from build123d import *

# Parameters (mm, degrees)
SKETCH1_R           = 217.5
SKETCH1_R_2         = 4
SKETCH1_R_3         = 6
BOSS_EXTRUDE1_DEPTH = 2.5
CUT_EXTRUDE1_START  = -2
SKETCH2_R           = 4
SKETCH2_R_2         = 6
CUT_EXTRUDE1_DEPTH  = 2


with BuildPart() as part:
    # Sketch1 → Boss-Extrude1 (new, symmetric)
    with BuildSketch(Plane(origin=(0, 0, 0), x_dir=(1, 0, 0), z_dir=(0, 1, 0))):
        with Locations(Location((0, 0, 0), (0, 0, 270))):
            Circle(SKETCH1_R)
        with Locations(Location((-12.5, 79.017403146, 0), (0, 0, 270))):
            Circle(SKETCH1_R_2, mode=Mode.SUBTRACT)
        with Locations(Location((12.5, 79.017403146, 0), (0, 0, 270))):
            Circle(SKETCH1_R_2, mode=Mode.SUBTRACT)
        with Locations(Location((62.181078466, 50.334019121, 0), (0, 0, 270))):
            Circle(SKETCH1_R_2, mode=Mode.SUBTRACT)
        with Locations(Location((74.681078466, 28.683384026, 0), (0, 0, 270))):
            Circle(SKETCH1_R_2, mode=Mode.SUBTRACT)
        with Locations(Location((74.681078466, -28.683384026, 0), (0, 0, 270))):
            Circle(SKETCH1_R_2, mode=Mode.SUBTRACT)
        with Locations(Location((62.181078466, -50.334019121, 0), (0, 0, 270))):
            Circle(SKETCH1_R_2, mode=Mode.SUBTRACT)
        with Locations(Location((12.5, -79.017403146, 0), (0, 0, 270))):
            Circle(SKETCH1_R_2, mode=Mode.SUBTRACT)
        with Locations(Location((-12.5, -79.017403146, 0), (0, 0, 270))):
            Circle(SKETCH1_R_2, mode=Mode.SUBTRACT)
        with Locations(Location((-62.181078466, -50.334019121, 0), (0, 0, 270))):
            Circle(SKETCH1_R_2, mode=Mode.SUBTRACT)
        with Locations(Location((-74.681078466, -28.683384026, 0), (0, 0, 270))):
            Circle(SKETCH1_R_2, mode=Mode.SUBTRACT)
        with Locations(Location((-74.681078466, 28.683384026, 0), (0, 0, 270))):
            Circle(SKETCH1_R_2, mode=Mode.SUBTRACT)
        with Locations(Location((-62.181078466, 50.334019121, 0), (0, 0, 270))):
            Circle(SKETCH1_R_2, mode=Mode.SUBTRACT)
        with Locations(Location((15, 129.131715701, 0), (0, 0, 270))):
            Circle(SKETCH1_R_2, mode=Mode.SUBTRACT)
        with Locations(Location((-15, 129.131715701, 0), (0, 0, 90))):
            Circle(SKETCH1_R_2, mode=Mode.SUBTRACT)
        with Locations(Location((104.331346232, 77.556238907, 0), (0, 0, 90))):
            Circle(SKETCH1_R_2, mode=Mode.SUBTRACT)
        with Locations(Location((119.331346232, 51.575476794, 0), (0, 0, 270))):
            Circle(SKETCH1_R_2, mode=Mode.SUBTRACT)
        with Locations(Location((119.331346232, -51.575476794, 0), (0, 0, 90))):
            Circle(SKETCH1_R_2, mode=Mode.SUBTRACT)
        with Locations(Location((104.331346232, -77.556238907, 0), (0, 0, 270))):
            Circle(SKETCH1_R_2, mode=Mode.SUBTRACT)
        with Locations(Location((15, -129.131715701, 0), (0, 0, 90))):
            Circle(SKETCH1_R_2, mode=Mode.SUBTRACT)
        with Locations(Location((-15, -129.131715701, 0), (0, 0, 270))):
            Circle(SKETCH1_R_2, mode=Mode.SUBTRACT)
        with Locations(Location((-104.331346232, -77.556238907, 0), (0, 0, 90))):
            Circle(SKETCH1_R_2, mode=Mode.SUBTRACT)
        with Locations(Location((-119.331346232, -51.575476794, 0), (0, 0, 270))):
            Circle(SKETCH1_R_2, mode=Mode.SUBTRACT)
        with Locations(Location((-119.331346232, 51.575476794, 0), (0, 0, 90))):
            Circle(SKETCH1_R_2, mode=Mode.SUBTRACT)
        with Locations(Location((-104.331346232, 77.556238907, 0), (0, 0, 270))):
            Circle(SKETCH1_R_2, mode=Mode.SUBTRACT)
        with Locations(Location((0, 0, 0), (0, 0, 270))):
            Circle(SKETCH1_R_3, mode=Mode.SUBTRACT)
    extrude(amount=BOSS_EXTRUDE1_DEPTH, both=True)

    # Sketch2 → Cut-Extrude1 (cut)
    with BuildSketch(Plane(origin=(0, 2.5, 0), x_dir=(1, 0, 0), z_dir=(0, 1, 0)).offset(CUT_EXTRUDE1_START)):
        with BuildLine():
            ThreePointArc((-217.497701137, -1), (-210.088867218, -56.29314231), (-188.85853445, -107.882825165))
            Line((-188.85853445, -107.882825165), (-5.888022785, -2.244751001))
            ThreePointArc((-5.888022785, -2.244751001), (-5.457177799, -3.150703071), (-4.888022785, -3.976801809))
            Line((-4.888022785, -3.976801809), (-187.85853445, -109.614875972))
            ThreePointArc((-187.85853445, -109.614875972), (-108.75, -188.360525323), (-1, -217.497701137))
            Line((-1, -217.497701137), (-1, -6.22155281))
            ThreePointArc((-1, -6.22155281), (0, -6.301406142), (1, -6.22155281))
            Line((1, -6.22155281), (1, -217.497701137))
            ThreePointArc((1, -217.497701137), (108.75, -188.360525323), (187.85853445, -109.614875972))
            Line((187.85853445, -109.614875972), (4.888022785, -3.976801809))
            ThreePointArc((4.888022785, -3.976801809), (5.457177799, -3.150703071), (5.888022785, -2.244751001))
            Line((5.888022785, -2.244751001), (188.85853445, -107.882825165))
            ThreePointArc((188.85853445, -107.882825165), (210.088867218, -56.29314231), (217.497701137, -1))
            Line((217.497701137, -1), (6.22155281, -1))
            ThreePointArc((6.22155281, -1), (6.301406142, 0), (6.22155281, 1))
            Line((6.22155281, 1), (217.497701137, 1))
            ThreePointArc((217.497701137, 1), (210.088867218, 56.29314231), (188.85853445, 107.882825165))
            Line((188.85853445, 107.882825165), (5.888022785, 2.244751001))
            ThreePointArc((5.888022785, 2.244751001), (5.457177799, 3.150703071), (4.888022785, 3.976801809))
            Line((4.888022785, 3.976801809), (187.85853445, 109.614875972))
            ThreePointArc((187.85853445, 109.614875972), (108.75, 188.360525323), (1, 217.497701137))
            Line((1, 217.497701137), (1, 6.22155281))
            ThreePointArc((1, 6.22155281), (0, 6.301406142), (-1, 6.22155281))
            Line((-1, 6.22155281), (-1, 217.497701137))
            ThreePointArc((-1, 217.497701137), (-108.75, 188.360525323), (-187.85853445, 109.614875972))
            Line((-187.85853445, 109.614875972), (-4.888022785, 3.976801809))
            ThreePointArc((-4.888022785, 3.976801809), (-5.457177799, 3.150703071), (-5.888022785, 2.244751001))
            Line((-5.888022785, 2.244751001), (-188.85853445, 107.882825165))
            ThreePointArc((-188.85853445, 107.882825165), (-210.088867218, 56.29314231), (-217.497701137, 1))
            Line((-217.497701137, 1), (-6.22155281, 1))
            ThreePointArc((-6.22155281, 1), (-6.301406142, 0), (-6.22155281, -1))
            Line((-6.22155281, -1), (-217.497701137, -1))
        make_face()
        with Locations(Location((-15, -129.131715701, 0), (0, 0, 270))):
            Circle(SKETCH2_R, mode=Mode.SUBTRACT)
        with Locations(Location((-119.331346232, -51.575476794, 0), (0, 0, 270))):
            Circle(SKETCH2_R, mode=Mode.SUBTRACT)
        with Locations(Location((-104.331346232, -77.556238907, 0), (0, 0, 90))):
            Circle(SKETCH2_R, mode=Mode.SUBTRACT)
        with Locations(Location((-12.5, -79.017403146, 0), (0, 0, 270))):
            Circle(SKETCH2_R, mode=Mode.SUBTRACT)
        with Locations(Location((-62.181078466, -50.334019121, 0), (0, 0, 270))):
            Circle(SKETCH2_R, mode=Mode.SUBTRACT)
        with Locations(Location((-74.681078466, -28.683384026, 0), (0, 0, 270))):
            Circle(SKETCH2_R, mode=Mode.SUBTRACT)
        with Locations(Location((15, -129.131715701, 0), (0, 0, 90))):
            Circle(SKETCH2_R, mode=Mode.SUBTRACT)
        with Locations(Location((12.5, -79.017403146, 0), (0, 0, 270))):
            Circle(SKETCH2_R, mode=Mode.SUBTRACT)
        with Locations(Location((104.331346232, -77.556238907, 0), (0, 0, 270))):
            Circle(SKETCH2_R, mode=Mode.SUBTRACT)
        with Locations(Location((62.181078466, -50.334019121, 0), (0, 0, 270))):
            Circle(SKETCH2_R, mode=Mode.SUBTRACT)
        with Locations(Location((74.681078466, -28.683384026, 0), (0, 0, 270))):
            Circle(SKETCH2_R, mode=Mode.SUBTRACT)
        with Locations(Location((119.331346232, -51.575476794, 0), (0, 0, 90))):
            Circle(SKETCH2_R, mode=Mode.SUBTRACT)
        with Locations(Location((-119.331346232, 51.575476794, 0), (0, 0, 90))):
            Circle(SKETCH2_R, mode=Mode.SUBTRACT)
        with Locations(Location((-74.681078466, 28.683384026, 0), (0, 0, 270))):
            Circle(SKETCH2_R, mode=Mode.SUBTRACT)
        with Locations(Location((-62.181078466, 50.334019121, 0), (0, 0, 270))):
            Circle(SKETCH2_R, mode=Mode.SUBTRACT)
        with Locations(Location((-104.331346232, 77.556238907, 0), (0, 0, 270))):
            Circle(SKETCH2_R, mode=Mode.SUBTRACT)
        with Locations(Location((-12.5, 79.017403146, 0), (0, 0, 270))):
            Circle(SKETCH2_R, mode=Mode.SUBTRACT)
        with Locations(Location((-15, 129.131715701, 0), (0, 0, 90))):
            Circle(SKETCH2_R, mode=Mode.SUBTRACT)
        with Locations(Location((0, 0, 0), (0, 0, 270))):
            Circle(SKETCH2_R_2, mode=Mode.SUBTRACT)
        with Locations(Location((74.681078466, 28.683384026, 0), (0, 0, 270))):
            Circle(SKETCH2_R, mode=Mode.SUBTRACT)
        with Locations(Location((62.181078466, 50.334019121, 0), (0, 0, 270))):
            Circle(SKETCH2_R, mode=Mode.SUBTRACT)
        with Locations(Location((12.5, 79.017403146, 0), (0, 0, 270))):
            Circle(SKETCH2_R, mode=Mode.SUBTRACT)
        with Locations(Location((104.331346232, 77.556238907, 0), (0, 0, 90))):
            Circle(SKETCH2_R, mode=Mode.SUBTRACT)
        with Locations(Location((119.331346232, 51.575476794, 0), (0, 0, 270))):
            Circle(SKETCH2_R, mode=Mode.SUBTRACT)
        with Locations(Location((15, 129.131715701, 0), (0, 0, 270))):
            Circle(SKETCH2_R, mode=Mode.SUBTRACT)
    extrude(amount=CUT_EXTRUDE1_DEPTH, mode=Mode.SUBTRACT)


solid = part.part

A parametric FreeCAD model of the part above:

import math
import FreeCAD as App
import Part
import Sketcher
Q = App.Units.Quantity

doc = App.newDocument("Part")
body = doc.addObject("PartDesign::Body", "Body")

sketch1 = body.newObject("Sketcher::SketchObject", "Sketch")
sketch1.AttachmentSupport = (doc.getObject("XZ_Plane"), [""])
sketch1.MapMode = "FlatFace"
sketch1.addGeometry([
    Part.Circle(App.Vector(0, 0, 0), App.Vector(0, 0, 1), 217.5),
    Part.Circle(App.Vector(-104.3, -77.6, 0), App.Vector(0, 0, 1), 4),
    Part.Circle(App.Vector(-119.3, -51.6, 0), App.Vector(0, 0, 1), 4),
    Part.Circle(App.Vector(-62.2, -50.3, 0), App.Vector(0, 0, 1), 4),
    Part.Circle(App.Vector(-74.7, -28.7, 0), App.Vector(0, 0, 1), 4),
    Part.Circle(App.Vector(-15, -129.1, 0), App.Vector(0, 0, 1), 4),
    Part.Circle(App.Vector(-12.5, -79, 0), App.Vector(0, 0, 1), 4),
    Part.Circle(App.Vector(-119.3, 51.6, 0), App.Vector(0, 0, 1), 4),
    Part.Circle(App.Vector(-74.7, 28.7, 0), App.Vector(0, 0, 1), 4),
    Part.Circle(App.Vector(-62.2, 50.3, 0), App.Vector(0, 0, 1), 4),
    Part.Circle(App.Vector(-104.3, 77.6, 0), App.Vector(0, 0, 1), 4),
    Part.Circle(App.Vector(0, 0, 0), App.Vector(0, 0, 1), 6),
    Part.Circle(App.Vector(-12.5, 79, 0), App.Vector(0, 0, 1), 4),
    Part.Circle(App.Vector(-15, 129.1, 0), App.Vector(0, 0, 1), 4),
    Part.Circle(App.Vector(15, -129.1, 0), App.Vector(0, 0, 1), 4),
    Part.Circle(App.Vector(12.5, -79, 0), App.Vector(0, 0, 1), 4),
    Part.Circle(App.Vector(104.3, -77.6, 0), App.Vector(0, 0, 1), 4),
    Part.Circle(App.Vector(62.2, -50.3, 0), App.Vector(0, 0, 1), 4),
    Part.Circle(App.Vector(74.7, -28.7, 0), App.Vector(0, 0, 1), 4),
    Part.Circle(App.Vector(119.3, -51.6, 0), App.Vector(0, 0, 1), 4),
    Part.Circle(App.Vector(12.5, 79, 0), App.Vector(0, 0, 1), 4),
    Part.Circle(App.Vector(15, 129.1, 0), App.Vector(0, 0, 1), 4),
    Part.Circle(App.Vector(74.7, 28.7, 0), App.Vector(0, 0, 1), 4),
    Part.Circle(App.Vector(62.2, 50.3, 0), App.Vector(0, 0, 1), 4),
    Part.Circle(App.Vector(119.3, 51.6, 0), App.Vector(0, 0, 1), 4),
    Part.Circle(App.Vector(104.3, 77.6, 0), App.Vector(0, 0, 1), 4),
], False)
sketch1.addConstraint([
    Sketcher.Constraint("Coincident", 0, 3, -1, 1),
    Sketcher.Constraint("Coincident", 11, 3, -1, 1),
    Sketcher.Constraint("Equal", 1, 2),
    Sketcher.Constraint("Equal", 2, 3),
    Sketcher.Constraint("Equal", 3, 4),
    Sketcher.Constraint("Equal", 4, 5),
    Sketcher.Constraint("Equal", 5, 6),
    Sketcher.Constraint("Equal", 6, 7),
    Sketcher.Constraint("Equal", 7, 8),
    Sketcher.Constraint("Equal", 8, 9),
    Sketcher.Constraint("Equal", 9, 10),
    Sketcher.Constraint("Equal", 10, 12),
    Sketcher.Constraint("Equal", 12, 13),
    Sketcher.Constraint("Equal", 13, 14),
    Sketcher.Constraint("Equal", 14, 15),
    Sketcher.Constraint("Equal", 15, 16),
    Sketcher.Constraint("Equal", 16, 17),
    Sketcher.Constraint("Equal", 17, 18),
    Sketcher.Constraint("Equal", 18, 19),
    Sketcher.Constraint("Equal", 19, 20),
    Sketcher.Constraint("Equal", 20, 21),
    Sketcher.Constraint("Equal", 21, 22),
    Sketcher.Constraint("Equal", 22, 23),
    Sketcher.Constraint("Equal", 23, 24),
    Sketcher.Constraint("Equal", 24, 25),
    Sketcher.Constraint("Symmetric", 13, 3, 14, 3, -1, 1),
    Sketcher.Constraint("Symmetric", 12, 3, 15, 3, -1, 1),
    Sketcher.Constraint("Symmetric", 10, 3, 16, 3, -1, 1),
    Sketcher.Constraint("Symmetric", 9, 3, 17, 3, -1, 1),
    Sketcher.Constraint("Symmetric", 8, 3, 18, 3, -1, 1),
    Sketcher.Constraint("Symmetric", 7, 3, 19, 3, -1, 1),
    Sketcher.Constraint("Symmetric", 6, 3, 20, 3, -1, 1),
    Sketcher.Constraint("Symmetric", 5, 3, 21, 3, -1, 1),
    Sketcher.Constraint("Symmetric", 4, 3, 22, 3, -1, 1),
    Sketcher.Constraint("Symmetric", 3, 3, 23, 3, -1, 1),
    Sketcher.Constraint("Symmetric", 2, 3, 24, 3, -1, 1),
    Sketcher.Constraint("Symmetric", 1, 3, 25, 3, -1, 1),
    Sketcher.Constraint("Symmetric", 5, 3, 14, 3, -2),
    Sketcher.Constraint("Symmetric", 6, 3, 15, 3, -2),
    Sketcher.Constraint("Symmetric", 1, 3, 16, 3, -2),
    Sketcher.Constraint("Symmetric", 3, 3, 17, 3, -2),
    Sketcher.Constraint("Symmetric", 4, 3, 18, 3, -2),
    Sketcher.Constraint("Symmetric", 2, 3, 19, 3, -2),
    Sketcher.Constraint("Diameter", 0, 435.0),
    Sketcher.Constraint("Diameter", 1, 8.0),
    Sketcher.Constraint("Diameter", 11, 12.0),
    Sketcher.Constraint("DistanceX", 5, 3, -1, 1, 15.0),
    Sketcher.Constraint("DistanceX", 2, 3, 1, 3, 15.0),
    Sketcher.Constraint("DistanceX", 6, 3, 15, 3, 25.0),
    Sketcher.Constraint("DistanceX", 4, 3, 3, 3, 12.5),
    Sketcher.Constraint("DistanceY", 1, 3, -1, 1, 77.556239),
    Sketcher.Constraint("DistanceX", 3, 3, -1, 1, 62.181078),
    Sketcher.Constraint("DistanceY", 3, 3, -1, 1, 50.334019),
    Sketcher.Constraint("DistanceY", 5, 3, 4, 3, 100.448332),
    Sketcher.Constraint("DistanceY", 5, 3, 2, 3, 77.556239),
    Sketcher.Constraint("DistanceY", 6, 3, 4, 3, 50.334019),
    Sketcher.Constraint("DistanceY", 4, 3, 7, 3, 80.258861),
    Sketcher.Constraint("DistanceX", 1, 3, -1, 1, 104.331346),
])
pad1 = body.newObject("PartDesign::Pad", "Pad")
pad1.Profile = sketch1
pad1.Length = 5
pad1.Midplane = True

sketch2 = body.newObject("Sketcher::SketchObject", "Sketch001")
sketch2.AttachmentSupport = (doc.getObject("XZ_Plane"), [""])
sketch2.MapMode = "FlatFace"
sketch2.AttachmentOffset = App.Placement(App.Vector(0, 0, -0.5), App.Rotation())
sketch2.addGeometry([
    Part.ArcOfCircle(Part.Circle(App.Vector(0, 0, 0), App.Vector(0, 0, 1), 217.5), math.radians(150), math.radians(180)),
    Part.LineSegment(App.Vector(-188.9, 107.9, 0), App.Vector(-5.9, 2.2, 0)),
    Part.ArcOfCircle(Part.Circle(App.Vector(0, 0, 0), App.Vector(0, 0, 1), 6.3), math.radians(140.87), math.radians(159.13)),
    Part.LineSegment(App.Vector(-4.9, 4, 0), App.Vector(-187.9, 109.6, 0)),
    Part.ArcOfCircle(Part.Circle(App.Vector(0, 0, 0), App.Vector(0, 0, 1), 217.5), math.radians(90), math.radians(150)),
    Part.LineSegment(App.Vector(-1, 217.5, 0), App.Vector(-1, 6.2, 0)),
    Part.ArcOfCircle(Part.Circle(App.Vector(0, 0, 0), App.Vector(0, 0, 1), 6.3), math.radians(80.87), math.radians(99.13)),
    Part.LineSegment(App.Vector(1, 6.2, 0), App.Vector(1, 217.5, 0)),
    Part.ArcOfCircle(Part.Circle(App.Vector(0, 0, 0), App.Vector(0, 0, 1), 217.5), math.radians(30), math.radians(90)),
    Part.LineSegment(App.Vector(187.9, 109.6, 0), App.Vector(4.9, 4, 0)),
    Part.ArcOfCircle(Part.Circle(App.Vector(0, 0, 0), App.Vector(0, 0, 1), 6.3), math.radians(20.87), math.radians(39.13)),
    Part.LineSegment(App.Vector(5.9, 2.2, 0), App.Vector(188.9, 107.9, 0)),
    Part.ArcOfCircle(Part.Circle(App.Vector(0, 0, 0), App.Vector(0, 0, 1), 217.5), math.radians(0), math.radians(30)),
    Part.LineSegment(App.Vector(217.5, 1, 0), App.Vector(6.2, 1, 0)),
    Part.ArcOfCircle(Part.Circle(App.Vector(0, 0, 0), App.Vector(0, 0, 1), 6.3), math.radians(-9.13), math.radians(9.13)),
    Part.LineSegment(App.Vector(6.2, -1, 0), App.Vector(217.5, -1, 0)),
    Part.ArcOfCircle(Part.Circle(App.Vector(0, 0, 0), App.Vector(0, 0, 1), 217.5), math.radians(-30), math.radians(0)),
    Part.LineSegment(App.Vector(188.9, -107.9, 0), App.Vector(5.9, -2.2, 0)),
    Part.ArcOfCircle(Part.Circle(App.Vector(0, 0, 0), App.Vector(0, 0, 1), 6.3), math.radians(-39.13), math.radians(-20.87)),
    Part.LineSegment(App.Vector(4.9, -4, 0), App.Vector(187.9, -109.6, 0)),
    Part.ArcOfCircle(Part.Circle(App.Vector(0, 0, 0), App.Vector(0, 0, 1), 217.5), math.radians(-90), math.radians(-30)),
    Part.LineSegment(App.Vector(1, -217.5, 0), App.Vector(1, -6.2, 0)),
    Part.ArcOfCircle(Part.Circle(App.Vector(0, 0, 0), App.Vector(0, 0, 1), 6.3), math.radians(-99.13), math.radians(-80.87)),
    Part.LineSegment(App.Vector(-1, -6.2, 0), App.Vector(-1, -217.5, 0)),
    Part.ArcOfCircle(Part.Circle(App.Vector(0, 0, 0), App.Vector(0, 0, 1), 217.5), math.radians(-150), math.radians(-90)),
    Part.LineSegment(App.Vector(-187.9, -109.6, 0), App.Vector(-4.9, -4, 0)),
    Part.ArcOfCircle(Part.Circle(App.Vector(0, 0, 0), App.Vector(0, 0, 1), 6.3), math.radians(-159.13), math.radians(-140.87)),
    Part.LineSegment(App.Vector(-5.9, -2.2, 0), App.Vector(-188.9, -107.9, 0)),
    Part.ArcOfCircle(Part.Circle(App.Vector(0, 0, 0), App.Vector(0, 0, 1), 217.5), math.radians(-180), math.radians(-150)),
    Part.LineSegment(App.Vector(-217.5, -1, 0), App.Vector(-6.2, -1, 0)),
    Part.ArcOfCircle(Part.Circle(App.Vector(0, 0, 0), App.Vector(0, 0, 1), 6.3), math.radians(170.87), math.radians(189.13)),
    Part.LineSegment(App.Vector(-6.2, 1, 0), App.Vector(-217.5, 1, 0)),
    Part.Circle(App.Vector(-104.3, 77.6, 0), App.Vector(0, 0, 1), 4),
    Part.Circle(App.Vector(-15, 129.1, 0), App.Vector(0, 0, 1), 4),
    Part.Circle(App.Vector(-12.5, 79, 0), App.Vector(0, 0, 1), 4),
    Part.Circle(App.Vector(-119.3, 51.6, 0), App.Vector(0, 0, 1), 4),
    Part.Circle(App.Vector(-62.2, 50.3, 0), App.Vector(0, 0, 1), 4),
    Part.Circle(App.Vector(-74.7, 28.7, 0), App.Vector(0, 0, 1), 4),
    Part.Circle(App.Vector(15, 129.1, 0), App.Vector(0, 0, 1), 4),
    Part.Circle(App.Vector(12.5, 79, 0), App.Vector(0, 0, 1), 4),
    Part.Circle(App.Vector(104.3, 77.6, 0), App.Vector(0, 0, 1), 4),
    Part.Circle(App.Vector(62.2, 50.3, 0), App.Vector(0, 0, 1), 4),
    Part.Circle(App.Vector(119.3, 51.6, 0), App.Vector(0, 0, 1), 4),
    Part.Circle(App.Vector(74.7, 28.7, 0), App.Vector(0, 0, 1), 4),
    Part.Circle(App.Vector(-74.7, -28.7, 0), App.Vector(0, 0, 1), 4),
    Part.Circle(App.Vector(-119.3, -51.6, 0), App.Vector(0, 0, 1), 4),
    Part.Circle(App.Vector(-62.2, -50.3, 0), App.Vector(0, 0, 1), 4),
    Part.Circle(App.Vector(-104.3, -77.6, 0), App.Vector(0, 0, 1), 4),
    Part.Circle(App.Vector(-12.5, -79, 0), App.Vector(0, 0, 1), 4),
    Part.Circle(App.Vector(-15, -129.1, 0), App.Vector(0, 0, 1), 4),
    Part.Circle(App.Vector(0, 0, 0), App.Vector(0, 0, 1), 6),
    Part.Circle(App.Vector(74.7, -28.7, 0), App.Vector(0, 0, 1), 4),
    Part.Circle(App.Vector(62.2, -50.3, 0), App.Vector(0, 0, 1), 4),
    Part.Circle(App.Vector(119.3, -51.6, 0), App.Vector(0, 0, 1), 4),
    Part.Circle(App.Vector(12.5, -79, 0), App.Vector(0, 0, 1), 4),
    Part.Circle(App.Vector(15, -129.1, 0), App.Vector(0, 0, 1), 4),
    Part.Circle(App.Vector(104.3, -77.6, 0), App.Vector(0, 0, 1), 4),
], False)
sketch2.addConstraint([
    Sketcher.Constraint("Coincident", 0, 1, 1, 1),
    Sketcher.Constraint("Coincident", 1, 2, 2, 2),
    Sketcher.Constraint("Coincident", 2, 1, 3, 1),
    Sketcher.Constraint("Coincident", 3, 2, 4, 2),
    Sketcher.Constraint("Coincident", 4, 1, 5, 1),
    Sketcher.Constraint("Coincident", 5, 2, 6, 2),
    Sketcher.Constraint("Coincident", 6, 1, 7, 1),
    Sketcher.Constraint("Coincident", 7, 2, 8, 2),
    Sketcher.Constraint("Coincident", 8, 1, 9, 1),
    Sketcher.Constraint("Coincident", 9, 2, 10, 2),
    Sketcher.Constraint("Coincident", 10, 1, 11, 1),
    Sketcher.Constraint("Coincident", 11, 2, 12, 2),
    Sketcher.Constraint("Coincident", 12, 1, 13, 1),
    Sketcher.Constraint("Coincident", 13, 2, 14, 2),
    Sketcher.Constraint("Coincident", 14, 1, 15, 1),
    Sketcher.Constraint("Coincident", 15, 2, 16, 2),
    Sketcher.Constraint("Coincident", 16, 1, 17, 1),
    Sketcher.Constraint("Coincident", 17, 2, 18, 2),
    Sketcher.Constraint("Coincident", 18, 1, 19, 1),
    Sketcher.Constraint("Coincident", 19, 2, 20, 2),
    Sketcher.Constraint("Coincident", 20, 1, 21, 1),
    Sketcher.Constraint("Coincident", 21, 2, 22, 2),
    Sketcher.Constraint("Coincident", 22, 1, 23, 1),
    Sketcher.Constraint("Coincident", 23, 2, 24, 2),
    Sketcher.Constraint("Coincident", 24, 1, 25, 1),
    Sketcher.Constraint("Coincident", 25, 2, 26, 2),
    Sketcher.Constraint("Coincident", 26, 1, 27, 1),
    Sketcher.Constraint("Coincident", 27, 2, 28, 2),
    Sketcher.Constraint("Coincident", 28, 1, 29, 1),
    Sketcher.Constraint("Coincident", 29, 2, 30, 2),
    Sketcher.Constraint("Coincident", 30, 1, 31, 1),
    Sketcher.Constraint("Coincident", 31, 2, 0, 2),
    Sketcher.Constraint("Vertical", 5),
    Sketcher.Constraint("Vertical", 7),
    Sketcher.Constraint("Horizontal", 13),
    Sketcher.Constraint("Horizontal", 15),
    Sketcher.Constraint("Vertical", 21),
    Sketcher.Constraint("Vertical", 23),
    Sketcher.Constraint("Horizontal", 29),
    Sketcher.Constraint("Horizontal", 31),
    Sketcher.Constraint("Coincident", 0, 3, -1, 1),
    Sketcher.Constraint("Coincident", 2, 3, -1, 1),
    Sketcher.Constraint("Coincident", 4, 3, -1, 1),
    Sketcher.Constraint("Coincident", 6, 3, -1, 1),
    Sketcher.Constraint("Coincident", 8, 3, -1, 1),
    Sketcher.Constraint("Coincident", 10, 3, -1, 1),
    Sketcher.Constraint("Coincident", 12, 3, -1, 1),
    Sketcher.Constraint("Coincident", 14, 3, -1, 1),
    Sketcher.Constraint("Coincident", 16, 3, -1, 1),
    Sketcher.Constraint("Coincident", 18, 3, -1, 1),
    Sketcher.Constraint("Coincident", 20, 3, -1, 1),
    Sketcher.Constraint("Coincident", 22, 3, -1, 1),
    Sketcher.Constraint("Coincident", 24, 3, -1, 1),
    Sketcher.Constraint("Coincident", 26, 3, -1, 1),
    Sketcher.Constraint("Coincident", 28, 3, -1, 1),
    Sketcher.Constraint("Coincident", 30, 3, -1, 1),
    Sketcher.Constraint("Coincident", 50, 3, -1, 1),
    Sketcher.Constraint("Equal", 0, 4),
    Sketcher.Constraint("Equal", 2, 6),
    Sketcher.Constraint("Equal", 4, 8),
    Sketcher.Constraint("Equal", 6, 10),
    Sketcher.Constraint("Equal", 8, 12),
    Sketcher.Constraint("Equal", 10, 14),
    Sketcher.Constraint("Equal", 12, 16),
    Sketcher.Constraint("Equal", 14, 18),
    Sketcher.Constraint("Equal", 16, 20),
    Sketcher.Constraint("Equal", 18, 22),
    Sketcher.Constraint("Equal", 20, 24),
    Sketcher.Constraint("Equal", 22, 26),
    Sketcher.Constraint("Equal", 24, 28),
    Sketcher.Constraint("Equal", 26, 30),
    Sketcher.Constraint("Equal", 32, 33),
    Sketcher.Constraint("Equal", 33, 34),
    Sketcher.Constraint("Equal", 34, 35),
    Sketcher.Constraint("Equal", 35, 36),
    Sketcher.Constraint("Equal", 36, 37),
    Sketcher.Constraint("Equal", 37, 38),
    Sketcher.Constraint("Equal", 38, 39),
    Sketcher.Constraint("Equal", 39, 40),
    Sketcher.Constraint("Equal", 40, 41),
    Sketcher.Constraint("Equal", 41, 42),
    Sketcher.Constraint("Equal", 42, 43),
    Sketcher.Constraint("Equal", 43, 44),
    Sketcher.Constraint("Equal", 44, 45),
    Sketcher.Constraint("Equal", 45, 46),
    Sketcher.Constraint("Equal", 46, 47),
    Sketcher.Constraint("Equal", 47, 48),
    Sketcher.Constraint("Equal", 48, 49),
    Sketcher.Constraint("Equal", 49, 51),
    Sketcher.Constraint("Equal", 51, 52),
    Sketcher.Constraint("Equal", 52, 53),
    Sketcher.Constraint("Equal", 53, 54),
    Sketcher.Constraint("Equal", 54, 55),
    Sketcher.Constraint("Equal", 55, 56),
    Sketcher.Constraint("Symmetric", 43, 3, 44, 3, -1, 1),
    Sketcher.Constraint("Symmetric", 42, 3, 45, 3, -1, 1),
    Sketcher.Constraint("Symmetric", 41, 3, 46, 3, -1, 1),
    Sketcher.Constraint("Symmetric", 40, 3, 47, 3, -1, 1),
    Sketcher.Constraint("Symmetric", 39, 3, 48, 3, -1, 1),
    Sketcher.Constraint("Symmetric", 38, 3, 49, 3, -1, 1),
    Sketcher.Constraint("Symmetric", 37, 3, 51, 3, -1, 1),
    Sketcher.Constraint("Symmetric", 36, 3, 52, 3, -1, 1),
    Sketcher.Constraint("Symmetric", 35, 3, 53, 3, -1, 1),
    Sketcher.Constraint("Symmetric", 34, 3, 54, 3, -1, 1),
    Sketcher.Constraint("Symmetric", 33, 3, 55, 3, -1, 1),
    Sketcher.Constraint("Symmetric", 32, 3, 56, 3, -1, 1),
    Sketcher.Constraint("Symmetric", 33, 3, 38, 3, -2),
    Sketcher.Constraint("Symmetric", 34, 3, 39, 3, -2),
    Sketcher.Constraint("Symmetric", 32, 3, 40, 3, -2),
    Sketcher.Constraint("Symmetric", 36, 3, 41, 3, -2),
    Sketcher.Constraint("Symmetric", 35, 3, 42, 3, -2),
    Sketcher.Constraint("Symmetric", 37, 3, 43, 3, -2),
    Sketcher.Constraint("Parallel", 1, 3),
    Sketcher.Constraint("Parallel", 9, 11),
    Sketcher.Constraint("Parallel", 3, 17),
    Sketcher.Constraint("Parallel", 17, 19),
    Sketcher.Constraint("Parallel", 11, 25),
    Sketcher.Constraint("Parallel", 25, 27),
    Sketcher.Constraint("Horizontal", 5, 2, 6, 1),
    Sketcher.Constraint("Horizontal", 3, 2, 8, 1),
    Sketcher.Constraint("Horizontal", 2, 1, 9, 2),
    Sketcher.Constraint("Horizontal", 1, 2, 10, 1),
    Sketcher.Constraint("Horizontal", 21, 2, 22, 1),
    Sketcher.Constraint("Horizontal", 19, 2, 24, 1),
    Sketcher.Constraint("Horizontal", 17, 2, 26, 1),
    Sketcher.Constraint("Horizontal", 15, 2, 28, 1),
    Sketcher.Constraint("Horizontal", 13, 2, 30, 1),
    Sketcher.Constraint("Vertical", 13, 2, 14, 1),
    Sketcher.Constraint("Vertical", 11, 2, 16, 1),
    Sketcher.Constraint("Vertical", 9, 2, 18, 1),
    Sketcher.Constraint("Vertical", 7, 2, 20, 1),
    Sketcher.Constraint("Equal", 31, 5),
    Sketcher.Constraint("Equal", 1, 3),
    Sketcher.Constraint("Diameter", 32, 8.0),
    Sketcher.Constraint("Diameter", 50, 12.0),
    Sketcher.Constraint("Radius", 0, 217.5),
    Sketcher.Constraint("Angle", 1, Q("-30 deg")),
    Sketcher.Constraint("DistanceX", 33, 3, -1, 1, 15.0),
    Sketcher.Constraint("DistanceX", 5, 2, -1, 1, 1.0),
    Sketcher.Constraint("DistanceX", 34, 3, -1, 1, 12.5),
    Sketcher.Constraint("Radius", 2, 6.301406),
    Sketcher.Constraint("DistanceY", -1, 1, 2, 1, 3.976802),
    Sketcher.Constraint("DistanceY", -1, 1, 32, 3, 77.556239),
    Sketcher.Constraint("DistanceX", 36, 3, -1, 1, 62.181078),
    Sketcher.Constraint("DistanceY", -1, 1, 36, 3, 50.334019),
    Sketcher.Constraint("DistanceX", 37, 3, -1, 1, 74.681078),
    Sketcher.Constraint("DistanceX", 32, 3, -1, 1, 104.331346),
    Sketcher.Constraint("DistanceY", -1, 1, 33, 3, 129.131716),
    Sketcher.Constraint("DistanceY", -1, 1, 34, 3, 79.017403),
    Sketcher.Constraint("DistanceX", 35, 3, -1, 1, 119.331346),
    Sketcher.Constraint("DistanceY", -1, 1, 35, 3, 51.575477),
    Sketcher.Constraint("DistanceY", -1, 1, 37, 3, 28.683384),
])
pocket1 = body.newObject("PartDesign::Pocket", "Pocket")
pocket1.Profile = sketch2
pocket1.Length = 2

doc.recompute()
